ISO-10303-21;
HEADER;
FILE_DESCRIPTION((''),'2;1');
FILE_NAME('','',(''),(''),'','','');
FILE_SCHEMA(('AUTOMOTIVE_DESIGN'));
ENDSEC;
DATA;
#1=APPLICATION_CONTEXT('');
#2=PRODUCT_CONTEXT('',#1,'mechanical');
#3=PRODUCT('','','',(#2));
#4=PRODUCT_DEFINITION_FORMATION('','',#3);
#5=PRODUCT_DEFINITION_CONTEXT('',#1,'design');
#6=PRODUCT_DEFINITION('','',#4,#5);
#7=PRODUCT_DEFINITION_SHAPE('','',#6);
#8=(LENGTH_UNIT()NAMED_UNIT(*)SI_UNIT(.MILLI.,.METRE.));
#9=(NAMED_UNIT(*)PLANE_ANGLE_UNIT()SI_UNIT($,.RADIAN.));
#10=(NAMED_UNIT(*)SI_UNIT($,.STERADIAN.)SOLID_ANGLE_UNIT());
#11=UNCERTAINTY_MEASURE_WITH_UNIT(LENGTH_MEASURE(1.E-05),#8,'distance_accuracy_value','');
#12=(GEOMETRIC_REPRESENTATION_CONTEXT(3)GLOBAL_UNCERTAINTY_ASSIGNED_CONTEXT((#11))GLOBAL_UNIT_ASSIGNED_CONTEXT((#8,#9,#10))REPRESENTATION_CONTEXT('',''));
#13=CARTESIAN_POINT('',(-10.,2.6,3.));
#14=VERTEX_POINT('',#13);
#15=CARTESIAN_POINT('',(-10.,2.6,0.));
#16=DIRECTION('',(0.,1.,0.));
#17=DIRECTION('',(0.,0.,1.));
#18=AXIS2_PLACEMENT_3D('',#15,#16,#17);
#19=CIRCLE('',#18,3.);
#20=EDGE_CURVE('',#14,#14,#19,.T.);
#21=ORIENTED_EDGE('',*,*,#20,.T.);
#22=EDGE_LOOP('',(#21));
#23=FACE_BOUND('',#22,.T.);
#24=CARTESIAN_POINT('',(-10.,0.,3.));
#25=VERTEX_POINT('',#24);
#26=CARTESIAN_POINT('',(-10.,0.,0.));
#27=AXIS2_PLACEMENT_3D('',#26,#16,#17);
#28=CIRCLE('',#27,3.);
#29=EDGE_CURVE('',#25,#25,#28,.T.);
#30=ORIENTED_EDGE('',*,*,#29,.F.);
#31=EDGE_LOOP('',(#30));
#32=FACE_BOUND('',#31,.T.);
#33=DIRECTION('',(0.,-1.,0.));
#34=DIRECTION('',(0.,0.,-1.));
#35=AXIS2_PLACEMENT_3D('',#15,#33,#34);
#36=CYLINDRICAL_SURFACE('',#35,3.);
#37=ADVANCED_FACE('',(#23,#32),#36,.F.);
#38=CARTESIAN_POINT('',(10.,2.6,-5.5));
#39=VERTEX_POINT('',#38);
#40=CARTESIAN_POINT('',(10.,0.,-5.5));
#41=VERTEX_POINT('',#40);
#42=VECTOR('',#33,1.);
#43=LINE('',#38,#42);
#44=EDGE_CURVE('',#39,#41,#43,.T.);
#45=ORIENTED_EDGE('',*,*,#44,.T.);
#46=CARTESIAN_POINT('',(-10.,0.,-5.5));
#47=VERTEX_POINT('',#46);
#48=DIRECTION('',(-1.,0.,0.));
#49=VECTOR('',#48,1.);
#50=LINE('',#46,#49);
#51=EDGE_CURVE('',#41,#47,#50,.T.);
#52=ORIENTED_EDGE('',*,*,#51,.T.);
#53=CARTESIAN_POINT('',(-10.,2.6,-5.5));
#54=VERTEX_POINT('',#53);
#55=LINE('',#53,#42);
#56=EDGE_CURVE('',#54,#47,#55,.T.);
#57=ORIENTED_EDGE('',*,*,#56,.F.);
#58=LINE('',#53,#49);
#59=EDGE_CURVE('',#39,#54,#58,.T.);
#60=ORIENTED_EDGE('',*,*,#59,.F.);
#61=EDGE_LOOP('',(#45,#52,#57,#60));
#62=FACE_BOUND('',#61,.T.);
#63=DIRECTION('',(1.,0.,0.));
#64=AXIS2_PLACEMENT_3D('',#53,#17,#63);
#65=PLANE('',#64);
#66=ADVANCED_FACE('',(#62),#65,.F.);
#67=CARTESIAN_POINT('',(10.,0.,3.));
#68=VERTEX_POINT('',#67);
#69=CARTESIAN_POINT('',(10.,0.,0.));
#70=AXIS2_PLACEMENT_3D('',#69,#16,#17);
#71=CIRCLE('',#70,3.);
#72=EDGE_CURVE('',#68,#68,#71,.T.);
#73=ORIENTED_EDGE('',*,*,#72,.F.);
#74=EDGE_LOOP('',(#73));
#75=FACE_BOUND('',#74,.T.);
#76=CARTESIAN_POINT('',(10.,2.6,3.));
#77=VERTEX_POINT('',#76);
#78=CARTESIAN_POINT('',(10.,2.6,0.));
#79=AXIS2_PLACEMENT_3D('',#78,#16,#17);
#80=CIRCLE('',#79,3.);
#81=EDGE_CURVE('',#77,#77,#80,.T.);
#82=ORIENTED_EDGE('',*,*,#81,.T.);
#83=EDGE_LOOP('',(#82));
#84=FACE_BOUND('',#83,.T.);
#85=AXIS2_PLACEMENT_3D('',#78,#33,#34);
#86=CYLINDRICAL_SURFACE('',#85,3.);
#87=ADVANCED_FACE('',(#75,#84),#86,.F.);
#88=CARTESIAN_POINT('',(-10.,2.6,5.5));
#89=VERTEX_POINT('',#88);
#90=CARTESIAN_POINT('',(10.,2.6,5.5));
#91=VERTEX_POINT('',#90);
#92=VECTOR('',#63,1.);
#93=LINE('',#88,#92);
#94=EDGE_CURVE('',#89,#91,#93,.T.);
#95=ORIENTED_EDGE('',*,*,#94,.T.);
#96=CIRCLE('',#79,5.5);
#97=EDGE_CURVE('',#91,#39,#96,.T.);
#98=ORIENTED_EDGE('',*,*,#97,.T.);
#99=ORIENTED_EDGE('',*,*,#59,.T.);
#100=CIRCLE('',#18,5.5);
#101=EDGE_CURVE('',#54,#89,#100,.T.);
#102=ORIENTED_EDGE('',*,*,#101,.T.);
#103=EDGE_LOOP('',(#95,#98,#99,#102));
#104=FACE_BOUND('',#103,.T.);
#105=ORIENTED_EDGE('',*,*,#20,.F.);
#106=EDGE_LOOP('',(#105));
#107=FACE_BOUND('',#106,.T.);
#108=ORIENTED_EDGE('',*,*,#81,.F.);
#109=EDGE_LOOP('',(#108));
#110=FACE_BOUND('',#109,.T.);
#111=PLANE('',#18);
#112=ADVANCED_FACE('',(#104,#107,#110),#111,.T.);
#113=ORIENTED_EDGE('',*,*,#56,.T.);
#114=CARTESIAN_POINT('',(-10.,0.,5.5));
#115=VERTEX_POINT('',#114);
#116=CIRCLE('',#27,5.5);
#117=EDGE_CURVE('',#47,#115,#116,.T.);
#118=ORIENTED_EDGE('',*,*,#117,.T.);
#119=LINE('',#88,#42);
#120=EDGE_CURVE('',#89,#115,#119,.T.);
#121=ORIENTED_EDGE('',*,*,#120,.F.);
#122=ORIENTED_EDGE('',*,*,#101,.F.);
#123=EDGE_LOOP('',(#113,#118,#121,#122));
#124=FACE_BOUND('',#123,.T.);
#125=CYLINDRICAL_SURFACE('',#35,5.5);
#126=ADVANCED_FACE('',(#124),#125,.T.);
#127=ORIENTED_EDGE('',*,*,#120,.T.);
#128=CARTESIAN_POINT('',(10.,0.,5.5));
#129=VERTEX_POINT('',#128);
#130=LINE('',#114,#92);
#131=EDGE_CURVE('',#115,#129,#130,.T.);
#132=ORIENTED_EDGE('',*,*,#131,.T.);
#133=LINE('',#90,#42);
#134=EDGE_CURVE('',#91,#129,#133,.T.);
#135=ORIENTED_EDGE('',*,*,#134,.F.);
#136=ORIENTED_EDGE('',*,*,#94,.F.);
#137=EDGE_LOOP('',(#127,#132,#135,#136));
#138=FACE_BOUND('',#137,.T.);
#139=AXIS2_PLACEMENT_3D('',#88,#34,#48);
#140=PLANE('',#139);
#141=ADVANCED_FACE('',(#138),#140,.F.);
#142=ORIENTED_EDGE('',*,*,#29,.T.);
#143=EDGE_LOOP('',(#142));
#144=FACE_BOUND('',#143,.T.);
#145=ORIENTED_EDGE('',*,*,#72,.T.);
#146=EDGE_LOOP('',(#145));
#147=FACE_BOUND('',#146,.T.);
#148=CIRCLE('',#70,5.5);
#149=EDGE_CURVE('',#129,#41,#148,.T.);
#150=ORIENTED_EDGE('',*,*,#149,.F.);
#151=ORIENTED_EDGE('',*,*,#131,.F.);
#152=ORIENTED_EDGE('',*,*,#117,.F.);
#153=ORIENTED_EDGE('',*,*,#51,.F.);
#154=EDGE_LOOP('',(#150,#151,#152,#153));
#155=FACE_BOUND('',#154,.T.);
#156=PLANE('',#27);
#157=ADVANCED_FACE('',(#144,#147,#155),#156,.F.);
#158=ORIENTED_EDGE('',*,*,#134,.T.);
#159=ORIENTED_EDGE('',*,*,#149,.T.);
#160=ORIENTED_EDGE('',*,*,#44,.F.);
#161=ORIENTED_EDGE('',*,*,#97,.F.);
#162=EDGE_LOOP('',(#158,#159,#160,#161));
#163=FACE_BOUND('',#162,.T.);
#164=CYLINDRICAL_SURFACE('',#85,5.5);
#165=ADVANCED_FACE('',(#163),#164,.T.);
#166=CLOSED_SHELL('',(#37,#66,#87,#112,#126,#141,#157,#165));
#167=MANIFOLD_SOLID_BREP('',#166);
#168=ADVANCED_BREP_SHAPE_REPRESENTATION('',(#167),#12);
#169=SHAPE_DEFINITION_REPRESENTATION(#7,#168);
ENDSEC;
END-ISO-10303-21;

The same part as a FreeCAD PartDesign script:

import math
import FreeCAD as App
import Part
import Sketcher
from FreeCAD import Vector
Q = App.Units.Quantity

doc = App.newDocument("Part")
params = doc.addObject("Spreadsheet::Sheet", "Params")
for row, (alias, value) in enumerate([
    ("sketch1_diameter", "6 mm"),
    ("sketch1_radius", "5.5 mm"),
    ("sketch1_width", "20 mm"),
    ("pad1_length", "2.6 mm"),
], start=1):
    params.set(f"A{row}", alias)
    params.set(f"B{row}", "=" + value)
    params.setAlias(f"B{row}", alias)

body = doc.addObject("PartDesign::Body", "Body")

sketch1 = doc.addObject("Sketcher::SketchObject", "Sketch")
body.addObject(sketch1)
sketch1.AttachmentSupport = (doc.XZ_Plane, [""])
sketch1.MapMode = "FlatFace"
sketch1.addGeometry(Part.LineSegment(Vector(10, -5.5, 0), Vector(-10, -5.5, 0)), False)
sketch1.addGeometry(Part.ArcOfCircle(Part.Circle(Vector(-10, 0, 0), Vector(0, 0, 1), 5.5), math.radians(90), math.radians(270)), False)
sketch1.addGeometry(Part.LineSegment(Vector(-10, 5.5, 0), Vector(10, 5.5, 0)), False)
sketch1.addGeometry(Part.ArcOfCircle(Part.Circle(Vector(10, 0, 0), Vector(0, 0, 1), 5.5), math.radians(-90), math.radians(90)), False)
sketch1.addGeometry(Part.Circle(Vector(10, 0, 0), Vector(0, 0, 1), 3), False)
sketch1.addGeometry(Part.Circle(Vector(-10, 0, 0), Vector(0, 0, 1), 3), False)
sketch1.addConstraint(Sketcher.Constraint("Tangent", 0, 2, 1, 2))
sketch1.addConstraint(Sketcher.Constraint("Tangent", 1, 1, 2, 1))
sketch1.addConstraint(Sketcher.Constraint("Tangent", 2, 2, 3, 2))
sketch1.addConstraint(Sketcher.Constraint("Tangent", 3, 1, 0, 1))
sketch1.addConstraint(Sketcher.Constraint("Horizontal", 0))
sketch1.addConstraint(Sketcher.Constraint("Horizontal", 2))
sketch1.addConstraint(Sketcher.Constraint("Coincident", 4, 3, 3, 3))
sketch1.addConstraint(Sketcher.Constraint("Coincident", 5, 3, 1, 3))
sketch1.addConstraint(Sketcher.Constraint("Equal", 4, 5))
sketch1.addConstraint(Sketcher.Constraint("Symmetric", 1, 3, 3, 3, -1, 1))
sketch1.addConstraint(Sketcher.Constraint("Diameter", 4, Q("6 mm")))
sketch1.addConstraint(Sketcher.Constraint("Radius", 1, Q("5.5 mm")))
sketch1.addConstraint(Sketcher.Constraint("DistanceX", 0, 2, 0, 1, Q("20 mm")))
sketch1.setExpression("Constraints[10]", "Params.sketch1_diameter")
sketch1.setExpression("Constraints[11]", "Params.sketch1_radius")
sketch1.setExpression("Constraints[12]", "Params.sketch1_width")
pad1 = doc.addObject("PartDesign::Pad", "Pad")
body.addObject(pad1)
pad1.Profile = sketch1
pad1.setExpression("Length", "Params.pad1_length")
pad1.Reversed = True

doc.recompute()
